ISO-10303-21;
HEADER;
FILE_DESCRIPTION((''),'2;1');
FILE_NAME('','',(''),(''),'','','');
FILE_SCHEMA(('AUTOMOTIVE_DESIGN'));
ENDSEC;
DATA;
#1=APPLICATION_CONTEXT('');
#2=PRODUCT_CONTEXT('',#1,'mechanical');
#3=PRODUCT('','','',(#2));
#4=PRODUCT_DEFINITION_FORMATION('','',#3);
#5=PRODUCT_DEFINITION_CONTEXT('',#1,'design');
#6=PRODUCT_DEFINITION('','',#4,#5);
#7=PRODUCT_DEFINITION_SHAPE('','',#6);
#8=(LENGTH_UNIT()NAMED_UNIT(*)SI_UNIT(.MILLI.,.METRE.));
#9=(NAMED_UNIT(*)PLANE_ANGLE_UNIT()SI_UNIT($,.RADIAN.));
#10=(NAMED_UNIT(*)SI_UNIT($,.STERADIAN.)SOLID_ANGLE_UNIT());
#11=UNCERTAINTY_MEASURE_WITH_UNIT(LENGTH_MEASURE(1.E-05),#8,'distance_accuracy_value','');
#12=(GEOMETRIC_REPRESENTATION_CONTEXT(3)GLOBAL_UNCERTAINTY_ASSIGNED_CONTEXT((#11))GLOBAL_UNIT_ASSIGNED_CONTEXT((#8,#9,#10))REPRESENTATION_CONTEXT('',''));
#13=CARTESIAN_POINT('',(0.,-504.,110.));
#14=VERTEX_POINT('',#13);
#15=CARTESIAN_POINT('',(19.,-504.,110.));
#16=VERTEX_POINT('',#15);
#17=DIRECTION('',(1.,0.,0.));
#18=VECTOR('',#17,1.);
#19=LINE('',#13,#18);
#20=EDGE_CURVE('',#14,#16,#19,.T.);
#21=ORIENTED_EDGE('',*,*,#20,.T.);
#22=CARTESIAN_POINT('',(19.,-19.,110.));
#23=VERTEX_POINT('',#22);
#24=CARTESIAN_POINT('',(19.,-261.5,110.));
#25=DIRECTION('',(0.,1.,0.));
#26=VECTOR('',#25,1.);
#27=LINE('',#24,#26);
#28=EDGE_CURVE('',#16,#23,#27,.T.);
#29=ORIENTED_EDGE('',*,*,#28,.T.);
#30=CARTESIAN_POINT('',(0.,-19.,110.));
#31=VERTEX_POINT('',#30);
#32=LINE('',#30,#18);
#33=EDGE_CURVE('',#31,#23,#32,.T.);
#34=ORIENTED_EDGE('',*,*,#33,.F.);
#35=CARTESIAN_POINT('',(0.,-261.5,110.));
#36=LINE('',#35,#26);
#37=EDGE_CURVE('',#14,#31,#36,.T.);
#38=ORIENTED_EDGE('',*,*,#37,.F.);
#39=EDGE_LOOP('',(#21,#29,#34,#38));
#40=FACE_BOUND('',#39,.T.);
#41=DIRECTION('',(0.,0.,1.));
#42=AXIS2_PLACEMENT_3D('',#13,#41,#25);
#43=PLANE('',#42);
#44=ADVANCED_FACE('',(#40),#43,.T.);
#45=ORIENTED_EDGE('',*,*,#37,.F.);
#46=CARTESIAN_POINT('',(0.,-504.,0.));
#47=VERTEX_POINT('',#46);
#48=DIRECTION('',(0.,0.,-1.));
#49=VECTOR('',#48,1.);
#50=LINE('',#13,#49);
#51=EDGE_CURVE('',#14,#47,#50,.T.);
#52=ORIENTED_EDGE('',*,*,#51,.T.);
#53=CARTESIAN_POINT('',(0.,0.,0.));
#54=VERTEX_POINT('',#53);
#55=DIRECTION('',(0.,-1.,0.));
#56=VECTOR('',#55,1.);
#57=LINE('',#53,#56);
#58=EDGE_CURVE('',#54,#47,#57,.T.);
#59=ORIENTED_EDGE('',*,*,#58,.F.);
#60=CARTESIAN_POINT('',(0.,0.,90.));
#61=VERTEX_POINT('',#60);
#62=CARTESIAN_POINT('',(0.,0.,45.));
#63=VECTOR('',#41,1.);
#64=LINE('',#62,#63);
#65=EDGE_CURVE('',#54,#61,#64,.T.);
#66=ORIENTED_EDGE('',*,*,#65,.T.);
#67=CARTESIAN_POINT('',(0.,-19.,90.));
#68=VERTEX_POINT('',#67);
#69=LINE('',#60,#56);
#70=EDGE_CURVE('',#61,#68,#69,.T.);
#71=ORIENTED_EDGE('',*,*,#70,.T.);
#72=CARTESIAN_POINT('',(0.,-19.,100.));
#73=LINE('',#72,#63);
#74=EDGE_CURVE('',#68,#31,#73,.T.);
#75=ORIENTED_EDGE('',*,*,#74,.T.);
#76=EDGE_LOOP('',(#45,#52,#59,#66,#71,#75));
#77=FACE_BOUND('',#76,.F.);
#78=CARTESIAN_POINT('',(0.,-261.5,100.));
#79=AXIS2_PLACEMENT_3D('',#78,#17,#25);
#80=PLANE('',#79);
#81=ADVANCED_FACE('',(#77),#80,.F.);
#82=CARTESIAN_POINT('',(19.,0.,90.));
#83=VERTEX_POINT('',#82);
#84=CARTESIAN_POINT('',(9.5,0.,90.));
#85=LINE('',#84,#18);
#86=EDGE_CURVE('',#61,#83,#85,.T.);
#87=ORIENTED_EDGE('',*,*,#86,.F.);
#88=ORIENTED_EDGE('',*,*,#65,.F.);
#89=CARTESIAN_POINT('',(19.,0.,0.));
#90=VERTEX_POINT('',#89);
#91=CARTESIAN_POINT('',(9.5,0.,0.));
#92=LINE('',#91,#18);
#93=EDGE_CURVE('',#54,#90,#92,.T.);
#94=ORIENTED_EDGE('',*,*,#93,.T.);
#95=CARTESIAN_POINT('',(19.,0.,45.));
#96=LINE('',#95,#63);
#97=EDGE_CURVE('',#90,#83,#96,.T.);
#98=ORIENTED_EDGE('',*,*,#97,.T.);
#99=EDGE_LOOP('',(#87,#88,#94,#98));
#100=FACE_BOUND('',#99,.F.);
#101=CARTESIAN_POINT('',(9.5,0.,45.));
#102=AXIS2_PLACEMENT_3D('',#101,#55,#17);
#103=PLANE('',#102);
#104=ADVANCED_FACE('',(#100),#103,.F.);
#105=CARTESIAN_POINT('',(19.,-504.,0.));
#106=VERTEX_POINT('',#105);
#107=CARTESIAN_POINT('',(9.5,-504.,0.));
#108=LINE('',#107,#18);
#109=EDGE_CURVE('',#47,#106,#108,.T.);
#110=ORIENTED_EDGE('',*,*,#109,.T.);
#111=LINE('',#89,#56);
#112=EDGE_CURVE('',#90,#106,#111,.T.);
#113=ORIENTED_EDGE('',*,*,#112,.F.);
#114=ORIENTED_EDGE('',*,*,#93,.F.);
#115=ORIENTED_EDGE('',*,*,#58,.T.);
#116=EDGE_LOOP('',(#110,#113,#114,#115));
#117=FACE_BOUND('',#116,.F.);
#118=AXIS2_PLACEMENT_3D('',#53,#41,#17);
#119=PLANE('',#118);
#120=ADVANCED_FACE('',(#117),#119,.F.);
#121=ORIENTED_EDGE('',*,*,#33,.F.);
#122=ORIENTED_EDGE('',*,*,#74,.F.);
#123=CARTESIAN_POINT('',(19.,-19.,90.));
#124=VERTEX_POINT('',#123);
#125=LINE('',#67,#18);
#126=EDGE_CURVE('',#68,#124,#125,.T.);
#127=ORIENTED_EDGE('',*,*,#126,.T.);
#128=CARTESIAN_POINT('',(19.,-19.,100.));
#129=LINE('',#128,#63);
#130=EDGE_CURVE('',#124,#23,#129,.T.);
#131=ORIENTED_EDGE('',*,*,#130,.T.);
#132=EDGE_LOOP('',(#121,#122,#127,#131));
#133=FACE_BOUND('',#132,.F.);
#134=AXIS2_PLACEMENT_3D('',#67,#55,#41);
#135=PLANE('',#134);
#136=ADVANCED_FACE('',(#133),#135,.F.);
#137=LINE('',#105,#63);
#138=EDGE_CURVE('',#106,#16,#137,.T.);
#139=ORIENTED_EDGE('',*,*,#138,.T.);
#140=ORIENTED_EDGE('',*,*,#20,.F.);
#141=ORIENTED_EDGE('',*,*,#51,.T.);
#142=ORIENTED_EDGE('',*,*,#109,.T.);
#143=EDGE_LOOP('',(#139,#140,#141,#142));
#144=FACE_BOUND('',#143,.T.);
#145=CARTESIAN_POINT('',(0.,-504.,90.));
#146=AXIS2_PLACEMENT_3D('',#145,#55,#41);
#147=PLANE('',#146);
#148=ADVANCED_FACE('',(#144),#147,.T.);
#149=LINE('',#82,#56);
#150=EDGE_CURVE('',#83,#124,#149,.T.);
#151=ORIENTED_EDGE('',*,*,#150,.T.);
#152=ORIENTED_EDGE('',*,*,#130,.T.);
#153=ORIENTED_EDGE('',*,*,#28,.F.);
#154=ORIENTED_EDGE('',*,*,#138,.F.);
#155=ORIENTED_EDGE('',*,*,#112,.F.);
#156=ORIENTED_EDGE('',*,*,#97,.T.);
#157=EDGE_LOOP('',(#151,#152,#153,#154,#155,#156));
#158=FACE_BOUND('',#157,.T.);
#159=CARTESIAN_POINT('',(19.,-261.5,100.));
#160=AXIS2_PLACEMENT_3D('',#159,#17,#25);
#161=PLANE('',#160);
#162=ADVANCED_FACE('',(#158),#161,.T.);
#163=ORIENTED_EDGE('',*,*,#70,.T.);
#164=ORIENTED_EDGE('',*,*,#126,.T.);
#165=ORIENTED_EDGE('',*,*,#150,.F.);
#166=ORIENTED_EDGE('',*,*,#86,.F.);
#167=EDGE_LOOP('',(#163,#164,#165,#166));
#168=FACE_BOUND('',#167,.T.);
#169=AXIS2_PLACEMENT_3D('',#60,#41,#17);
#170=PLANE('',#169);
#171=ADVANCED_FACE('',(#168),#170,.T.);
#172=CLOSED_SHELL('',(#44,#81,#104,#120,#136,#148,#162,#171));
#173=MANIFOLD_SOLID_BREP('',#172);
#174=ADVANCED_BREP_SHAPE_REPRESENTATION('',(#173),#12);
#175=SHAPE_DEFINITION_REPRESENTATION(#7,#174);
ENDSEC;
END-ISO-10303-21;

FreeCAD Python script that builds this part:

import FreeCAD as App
import Part
import Sketcher
Q = App.Units.Quantity

doc = App.newDocument("Part")
body = doc.addObject("PartDesign::Body", "Body")

sketch1 = body.newObject("Sketcher::SketchObject", "Sketch")
sketch1.AttachmentSupport = (doc.getObject("XZ_Plane"), [""])
sketch1.MapMode = "FlatFace"
sketch1.addGeometry([
    Part.LineSegment(App.Vector(0, 90, 0), App.Vector(0, 0, 0)),
    Part.LineSegment(App.Vector(0, 0, 0), App.Vector(19, 0, 0)),
    Part.LineSegment(App.Vector(19, 0, 0), App.Vector(19, 90, 0)),
    Part.LineSegment(App.Vector(19, 90, 0), App.Vector(0, 90, 0)),
], False)
sketch1.addConstraint([
    Sketcher.Constraint("Coincident", 0, 2, 1, 1),
    Sketcher.Constraint("Coincident", 1, 2, 2, 1),
    Sketcher.Constraint("Coincident", 2, 2, 3, 1),
    Sketcher.Constraint("Coincident", 3, 2, 0, 1),
    Sketcher.Constraint("Vertical", 0),
    Sketcher.Constraint("Horizontal", 1),
    Sketcher.Constraint("Vertical", 2),
    Sketcher.Constraint("Horizontal", 3),
    Sketcher.Constraint("Coincident", 0, 2, -1, 1),
    Sketcher.Constraint("DistanceX", 1, 1, 1, 2, Q("19 mm")),
    Sketcher.Constraint("DistanceY", 0, 2, 0, 1, Q("90 mm")),
])
pad1 = body.newObject("PartDesign::Pad", "Pad")
pad1.Profile = sketch1
pad1.Length = 504

sketch2 = body.newObject("Sketcher::SketchObject", "Sketch001")
sketch2.AttachmentSupport = (doc.getObject("YZ_Plane"), [""])
sketch2.MapMode = "FlatFace"
sketch2.addGeometry([
    Part.LineSegment(App.Vector(-504, 110, 0), App.Vector(-504, 90, 0)),
    Part.LineSegment(App.Vector(-504, 90, 0), App.Vector(-19, 90, 0)),
    Part.LineSegment(App.Vector(-19, 90, 0), App.Vector(-19, 110, 0)),
    Part.LineSegment(App.Vector(-19, 110, 0), App.Vector(-504, 110, 0)),
], False)
sketch2.addConstraint([
    Sketcher.Constraint("Coincident", 0, 2, 1, 1),
    Sketcher.Constraint("Coincident", 1, 2, 2, 1),
    Sketcher.Constraint("Coincident", 2, 2, 3, 1),
    Sketcher.Constraint("Coincident", 3, 2, 0, 1),
    Sketcher.Constraint("Vertical", 0),
    Sketcher.Constraint("Horizontal", 1),
    Sketcher.Constraint("Vertical", 2),
    Sketcher.Constraint("Horizontal", 3),
    Sketcher.Constraint("DistanceX", 1, 1, 1, 2, Q("485 mm")),
    Sketcher.Constraint("DistanceY", 0, 2, 0, 1, Q("20 mm")),
    Sketcher.Constraint("DistanceX", 0, 2, -1, 1, Q("504 mm")),
    Sketcher.Constraint("DistanceY", -1, 1, 0, 2, Q("90 mm")),
])
pad2 = body.newObject("PartDesign::Pad", "Pad001")
pad2.Profile = sketch2
pad2.Length = 19

doc.recompute()
